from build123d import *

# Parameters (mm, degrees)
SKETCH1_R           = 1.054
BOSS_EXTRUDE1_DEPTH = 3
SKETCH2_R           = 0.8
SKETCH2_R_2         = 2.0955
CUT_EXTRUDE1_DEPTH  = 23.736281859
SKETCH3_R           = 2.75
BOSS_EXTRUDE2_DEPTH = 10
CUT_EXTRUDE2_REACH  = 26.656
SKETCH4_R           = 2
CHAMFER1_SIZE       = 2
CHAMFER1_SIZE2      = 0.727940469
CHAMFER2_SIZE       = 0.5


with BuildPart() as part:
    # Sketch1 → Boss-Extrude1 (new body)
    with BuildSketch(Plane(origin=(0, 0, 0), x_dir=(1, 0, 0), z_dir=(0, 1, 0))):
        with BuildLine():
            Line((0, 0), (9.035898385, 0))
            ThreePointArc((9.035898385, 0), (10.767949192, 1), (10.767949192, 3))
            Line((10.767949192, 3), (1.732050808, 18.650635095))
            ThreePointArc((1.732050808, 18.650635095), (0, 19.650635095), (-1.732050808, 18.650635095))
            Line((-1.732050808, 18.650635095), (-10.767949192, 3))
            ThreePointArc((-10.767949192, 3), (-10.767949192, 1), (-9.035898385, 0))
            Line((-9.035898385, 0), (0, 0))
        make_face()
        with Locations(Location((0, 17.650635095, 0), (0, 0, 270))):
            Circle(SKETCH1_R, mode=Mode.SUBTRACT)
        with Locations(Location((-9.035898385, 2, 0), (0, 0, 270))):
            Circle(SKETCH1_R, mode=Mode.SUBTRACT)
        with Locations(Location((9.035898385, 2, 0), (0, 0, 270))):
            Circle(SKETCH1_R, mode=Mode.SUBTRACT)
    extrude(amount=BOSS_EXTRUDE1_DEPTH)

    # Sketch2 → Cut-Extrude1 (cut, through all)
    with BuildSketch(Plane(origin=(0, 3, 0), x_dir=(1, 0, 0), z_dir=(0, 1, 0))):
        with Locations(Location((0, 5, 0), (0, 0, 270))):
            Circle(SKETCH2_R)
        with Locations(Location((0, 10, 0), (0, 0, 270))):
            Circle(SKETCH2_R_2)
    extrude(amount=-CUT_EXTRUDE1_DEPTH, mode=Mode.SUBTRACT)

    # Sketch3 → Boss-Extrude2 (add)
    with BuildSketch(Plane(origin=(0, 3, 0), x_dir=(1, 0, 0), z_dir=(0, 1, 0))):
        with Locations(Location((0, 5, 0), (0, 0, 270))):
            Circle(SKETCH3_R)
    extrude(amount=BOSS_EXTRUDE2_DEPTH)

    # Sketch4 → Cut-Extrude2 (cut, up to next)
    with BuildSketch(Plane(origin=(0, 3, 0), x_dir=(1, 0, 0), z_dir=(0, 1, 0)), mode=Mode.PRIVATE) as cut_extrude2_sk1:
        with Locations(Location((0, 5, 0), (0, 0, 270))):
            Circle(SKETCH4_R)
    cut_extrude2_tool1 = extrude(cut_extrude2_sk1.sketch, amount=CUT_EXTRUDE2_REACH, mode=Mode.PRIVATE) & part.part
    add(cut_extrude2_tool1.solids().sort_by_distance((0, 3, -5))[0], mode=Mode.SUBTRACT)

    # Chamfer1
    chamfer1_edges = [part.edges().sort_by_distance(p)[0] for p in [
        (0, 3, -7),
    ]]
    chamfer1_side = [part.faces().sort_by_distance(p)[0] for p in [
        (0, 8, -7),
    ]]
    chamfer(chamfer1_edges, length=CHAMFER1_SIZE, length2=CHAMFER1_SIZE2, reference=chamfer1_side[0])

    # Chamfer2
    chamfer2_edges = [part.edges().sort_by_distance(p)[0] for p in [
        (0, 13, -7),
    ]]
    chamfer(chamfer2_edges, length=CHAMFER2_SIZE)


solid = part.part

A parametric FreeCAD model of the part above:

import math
import FreeCAD as App
import Part
import Sketcher
Q = App.Units.Quantity


def edges_at(feature, points):
    """Names of the edges that pass closest to the given points."""
    edges = feature.Shape.Edges
    near = lambda p: min(range(len(edges)), key=lambda i: edges[i].distToShape(Part.Vertex(*p))[0])
    return sorted({f"Edge{near(p) + 1}" for p in points})

doc = App.newDocument("Part")
params = doc.addObject("Spreadsheet::Sheet", "Params")
for row, (alias, value) in enumerate([
    ("sketch1_radius", "2 mm"),
    ("pad1_length", "3 mm"),
    ("sketch2_diameter", "1.6 mm"),
    ("sketch3_diameter", "5.5 mm"),
    ("pad2_length", "10 mm"),
    ("sketch4_diameter", "4 mm"),
    ("chamfer_size", "2 mm"),
    ("chamfer_size2", "0.72794 mm"),
    ("chamfer2_size", "0.5 mm"),
], start=1):
    params.set(f"A{row}", alias)
    params.set(f"B{row}", "=" + value)
    params.setAlias(f"B{row}", alias)

body = doc.addObject("PartDesign::Body", "Body")

sketch1 = body.newObject("Sketcher::SketchObject", "Sketch")
sketch1.AttachmentSupport = (doc.getObject("XZ_Plane"), [""])
sketch1.MapMode = "FlatFace"
sketch1.addGeometry([
    Part.ArcOfCircle(Part.Circle(App.Vector(9, -2, 0), App.Vector(0, 0, 1), 2), math.radians(-30), math.radians(90)),
    Part.LineSegment(App.Vector(10.8, -3, 0), App.Vector(1.7, -18.7, 0)),
    Part.ArcOfCircle(Part.Circle(App.Vector(0, -17.7, 0), App.Vector(0, 0, 1), 2), math.radians(-150), math.radians(-30)),
    Part.LineSegment(App.Vector(-1.7, -18.7, 0), App.Vector(-10.8, -3, 0)),
    Part.ArcOfCircle(Part.Circle(App.Vector(-9, -2, 0), App.Vector(0, 0, 1), 2), math.radians(90), math.radians(210)),
    Part.LineSegment(App.Vector(-9, 0, 0), App.Vector(9, 0, 0)),
    Part.Circle(App.Vector(-9, -2, 0), App.Vector(0, 0, 1), 1.1),
    Part.Circle(App.Vector(9, -2, 0), App.Vector(0, 0, 1), 1.1),
    Part.Circle(App.Vector(0, -17.7, 0), App.Vector(0, 0, 1), 1.1),
], False)
sketch1.addConstraint([
    Sketcher.Constraint("Tangent", 0, 1, 1, 1),
    Sketcher.Constraint("Tangent", 1, 2, 2, 2),
    Sketcher.Constraint("Tangent", 2, 1, 3, 1),
    Sketcher.Constraint("Tangent", 3, 2, 4, 2),
    Sketcher.Constraint("Tangent", 4, 1, 5, 1),
    Sketcher.Constraint("Tangent", 5, 2, 0, 2),
    Sketcher.Constraint("Horizontal", 5),
    Sketcher.Constraint("Coincident", 6, 3, 4, 3),
    Sketcher.Constraint("Coincident", 7, 3, 0, 3),
    Sketcher.Constraint("Coincident", 8, 3, 2, 3),
    Sketcher.Constraint("Equal", 0, 2),
    Sketcher.Constraint("Equal", 2, 4),
    Sketcher.Constraint("Equal", 6, 7),
    Sketcher.Constraint("Equal", 7, 8),
    Sketcher.Constraint("Symmetric", 4, 1, 5, 2, -1, 1),
    Sketcher.Constraint("PointOnObject", 2, 3, -2),
    Sketcher.Constraint("Radius", 0, Q("2 mm")),
    Sketcher.Constraint("Angle", 1, Q("-120 deg")),
    Sketcher.Constraint("Diameter", 6, Q("2.108 mm")),
    Sketcher.Constraint("DistanceX", -1, 1, 0, 3, Q("9.035898 mm")),
])
sketch1.setExpression("Constraints[16]", "Params.sketch1_radius")
pad1 = body.newObject("PartDesign::Pad", "Pad")
pad1.Profile = sketch1
pad1.setExpression("Length", "Params.pad1_length")
pad1.Reversed = True

sketch2 = body.newObject("Sketcher::SketchObject", "Sketch001")
sketch2.AttachmentSupport = (doc.getObject("XZ_Plane"), [""])
sketch2.MapMode = "FlatFace"
sketch2.AttachmentOffset = App.Placement(App.Vector(0, 0, -3), App.Rotation())
sketch2.addGeometry([
    Part.Circle(App.Vector(0, -5, 0), App.Vector(0, 0, 1), 0.8),
    Part.Circle(App.Vector(0, -10, 0), App.Vector(0, 0, 1), 2.1),
], False)
sketch2.addConstraint([
    Sketcher.Constraint("PointOnObject", 0, 3, -2),
    Sketcher.Constraint("PointOnObject", 1, 3, -2),
    Sketcher.Constraint("Diameter", 0, Q("1.6 mm")),
    Sketcher.Constraint("Diameter", 1, Q("4.191 mm")),
    Sketcher.Constraint("DistanceY", 0, 3, -1, 1, Q("5 mm")),
    Sketcher.Constraint("DistanceY", 1, 3, -1, 1, Q("10 mm")),
])
sketch2.setExpression("Constraints[2]", "Params.sketch2_diameter")
pocket1 = body.newObject("PartDesign::Pocket", "Pocket")
pocket1.Profile = sketch2
pocket1.Type = "ThroughAll"
pocket1.Reversed = True

sketch3 = body.newObject("Sketcher::SketchObject", "Sketch002")
sketch3.AttachmentSupport = (doc.getObject("XZ_Plane"), [""])
sketch3.MapMode = "FlatFace"
sketch3.AttachmentOffset = App.Placement(App.Vector(0, 0, -3), App.Rotation())
sketch3.addGeometry(Part.Circle(App.Vector(0, -5, 0), App.Vector(0, 0, 1), 2.8), False)
sketch3.addConstraint([
    Sketcher.Constraint("PointOnObject", 0, 3, -2),
    Sketcher.Constraint("Diameter", 0, Q("5.5 mm")),
    Sketcher.Constraint("DistanceY", 0, 3, -1, 1, Q("5 mm")),
])
sketch3.setExpression("Constraints[1]", "Params.sketch3_diameter")
pad2 = body.newObject("PartDesign::Pad", "Pad001")
pad2.Profile = sketch3
pad2.setExpression("Length", "Params.pad2_length")
pad2.Reversed = True

sketch4 = body.newObject("Sketcher::SketchObject", "Sketch003")
sketch4.AttachmentSupport = (doc.getObject("XZ_Plane"), [""])
sketch4.MapMode = "FlatFace"
sketch4.AttachmentOffset = App.Placement(App.Vector(0, 0, -3), App.Rotation())
sketch4.addGeometry(Part.Circle(App.Vector(0, -5, 0), App.Vector(0, 0, 1), 2), False)
sketch4.addConstraint([
    Sketcher.Constraint("PointOnObject", 0, 3, -2),
    Sketcher.Constraint("Diameter", 0, Q("4 mm")),
    Sketcher.Constraint("DistanceY", 0, 3, -1, 1, Q("5 mm")),
])
sketch4.setExpression("Constraints[1]", "Params.sketch4_diameter")
pocket2 = body.newObject("PartDesign::Pocket", "Pocket001")
pocket2.Profile = sketch4
pocket2.Type = "UpToFirst"
doc.recompute()

chamfer = body.newObject("PartDesign::Chamfer", "Chamfer")
chamfer.Base = (pocket2, edges_at(pocket2, [(0, 3, -7)]))
chamfer.ChamferType = "Two distances"
chamfer.setExpression("Size", "Params.chamfer_size")
chamfer.setExpression("Size2", "Params.chamfer_size2")
chamfer.FlipDirection = True
doc.recompute()

chamfer2 = body.newObject("PartDesign::Chamfer", "Chamfer001")
chamfer2.Base = (chamfer, edges_at(chamfer, [(0, 13, -7)]))
chamfer2.setExpression("Size", "Params.chamfer2_size")

doc.recompute()
